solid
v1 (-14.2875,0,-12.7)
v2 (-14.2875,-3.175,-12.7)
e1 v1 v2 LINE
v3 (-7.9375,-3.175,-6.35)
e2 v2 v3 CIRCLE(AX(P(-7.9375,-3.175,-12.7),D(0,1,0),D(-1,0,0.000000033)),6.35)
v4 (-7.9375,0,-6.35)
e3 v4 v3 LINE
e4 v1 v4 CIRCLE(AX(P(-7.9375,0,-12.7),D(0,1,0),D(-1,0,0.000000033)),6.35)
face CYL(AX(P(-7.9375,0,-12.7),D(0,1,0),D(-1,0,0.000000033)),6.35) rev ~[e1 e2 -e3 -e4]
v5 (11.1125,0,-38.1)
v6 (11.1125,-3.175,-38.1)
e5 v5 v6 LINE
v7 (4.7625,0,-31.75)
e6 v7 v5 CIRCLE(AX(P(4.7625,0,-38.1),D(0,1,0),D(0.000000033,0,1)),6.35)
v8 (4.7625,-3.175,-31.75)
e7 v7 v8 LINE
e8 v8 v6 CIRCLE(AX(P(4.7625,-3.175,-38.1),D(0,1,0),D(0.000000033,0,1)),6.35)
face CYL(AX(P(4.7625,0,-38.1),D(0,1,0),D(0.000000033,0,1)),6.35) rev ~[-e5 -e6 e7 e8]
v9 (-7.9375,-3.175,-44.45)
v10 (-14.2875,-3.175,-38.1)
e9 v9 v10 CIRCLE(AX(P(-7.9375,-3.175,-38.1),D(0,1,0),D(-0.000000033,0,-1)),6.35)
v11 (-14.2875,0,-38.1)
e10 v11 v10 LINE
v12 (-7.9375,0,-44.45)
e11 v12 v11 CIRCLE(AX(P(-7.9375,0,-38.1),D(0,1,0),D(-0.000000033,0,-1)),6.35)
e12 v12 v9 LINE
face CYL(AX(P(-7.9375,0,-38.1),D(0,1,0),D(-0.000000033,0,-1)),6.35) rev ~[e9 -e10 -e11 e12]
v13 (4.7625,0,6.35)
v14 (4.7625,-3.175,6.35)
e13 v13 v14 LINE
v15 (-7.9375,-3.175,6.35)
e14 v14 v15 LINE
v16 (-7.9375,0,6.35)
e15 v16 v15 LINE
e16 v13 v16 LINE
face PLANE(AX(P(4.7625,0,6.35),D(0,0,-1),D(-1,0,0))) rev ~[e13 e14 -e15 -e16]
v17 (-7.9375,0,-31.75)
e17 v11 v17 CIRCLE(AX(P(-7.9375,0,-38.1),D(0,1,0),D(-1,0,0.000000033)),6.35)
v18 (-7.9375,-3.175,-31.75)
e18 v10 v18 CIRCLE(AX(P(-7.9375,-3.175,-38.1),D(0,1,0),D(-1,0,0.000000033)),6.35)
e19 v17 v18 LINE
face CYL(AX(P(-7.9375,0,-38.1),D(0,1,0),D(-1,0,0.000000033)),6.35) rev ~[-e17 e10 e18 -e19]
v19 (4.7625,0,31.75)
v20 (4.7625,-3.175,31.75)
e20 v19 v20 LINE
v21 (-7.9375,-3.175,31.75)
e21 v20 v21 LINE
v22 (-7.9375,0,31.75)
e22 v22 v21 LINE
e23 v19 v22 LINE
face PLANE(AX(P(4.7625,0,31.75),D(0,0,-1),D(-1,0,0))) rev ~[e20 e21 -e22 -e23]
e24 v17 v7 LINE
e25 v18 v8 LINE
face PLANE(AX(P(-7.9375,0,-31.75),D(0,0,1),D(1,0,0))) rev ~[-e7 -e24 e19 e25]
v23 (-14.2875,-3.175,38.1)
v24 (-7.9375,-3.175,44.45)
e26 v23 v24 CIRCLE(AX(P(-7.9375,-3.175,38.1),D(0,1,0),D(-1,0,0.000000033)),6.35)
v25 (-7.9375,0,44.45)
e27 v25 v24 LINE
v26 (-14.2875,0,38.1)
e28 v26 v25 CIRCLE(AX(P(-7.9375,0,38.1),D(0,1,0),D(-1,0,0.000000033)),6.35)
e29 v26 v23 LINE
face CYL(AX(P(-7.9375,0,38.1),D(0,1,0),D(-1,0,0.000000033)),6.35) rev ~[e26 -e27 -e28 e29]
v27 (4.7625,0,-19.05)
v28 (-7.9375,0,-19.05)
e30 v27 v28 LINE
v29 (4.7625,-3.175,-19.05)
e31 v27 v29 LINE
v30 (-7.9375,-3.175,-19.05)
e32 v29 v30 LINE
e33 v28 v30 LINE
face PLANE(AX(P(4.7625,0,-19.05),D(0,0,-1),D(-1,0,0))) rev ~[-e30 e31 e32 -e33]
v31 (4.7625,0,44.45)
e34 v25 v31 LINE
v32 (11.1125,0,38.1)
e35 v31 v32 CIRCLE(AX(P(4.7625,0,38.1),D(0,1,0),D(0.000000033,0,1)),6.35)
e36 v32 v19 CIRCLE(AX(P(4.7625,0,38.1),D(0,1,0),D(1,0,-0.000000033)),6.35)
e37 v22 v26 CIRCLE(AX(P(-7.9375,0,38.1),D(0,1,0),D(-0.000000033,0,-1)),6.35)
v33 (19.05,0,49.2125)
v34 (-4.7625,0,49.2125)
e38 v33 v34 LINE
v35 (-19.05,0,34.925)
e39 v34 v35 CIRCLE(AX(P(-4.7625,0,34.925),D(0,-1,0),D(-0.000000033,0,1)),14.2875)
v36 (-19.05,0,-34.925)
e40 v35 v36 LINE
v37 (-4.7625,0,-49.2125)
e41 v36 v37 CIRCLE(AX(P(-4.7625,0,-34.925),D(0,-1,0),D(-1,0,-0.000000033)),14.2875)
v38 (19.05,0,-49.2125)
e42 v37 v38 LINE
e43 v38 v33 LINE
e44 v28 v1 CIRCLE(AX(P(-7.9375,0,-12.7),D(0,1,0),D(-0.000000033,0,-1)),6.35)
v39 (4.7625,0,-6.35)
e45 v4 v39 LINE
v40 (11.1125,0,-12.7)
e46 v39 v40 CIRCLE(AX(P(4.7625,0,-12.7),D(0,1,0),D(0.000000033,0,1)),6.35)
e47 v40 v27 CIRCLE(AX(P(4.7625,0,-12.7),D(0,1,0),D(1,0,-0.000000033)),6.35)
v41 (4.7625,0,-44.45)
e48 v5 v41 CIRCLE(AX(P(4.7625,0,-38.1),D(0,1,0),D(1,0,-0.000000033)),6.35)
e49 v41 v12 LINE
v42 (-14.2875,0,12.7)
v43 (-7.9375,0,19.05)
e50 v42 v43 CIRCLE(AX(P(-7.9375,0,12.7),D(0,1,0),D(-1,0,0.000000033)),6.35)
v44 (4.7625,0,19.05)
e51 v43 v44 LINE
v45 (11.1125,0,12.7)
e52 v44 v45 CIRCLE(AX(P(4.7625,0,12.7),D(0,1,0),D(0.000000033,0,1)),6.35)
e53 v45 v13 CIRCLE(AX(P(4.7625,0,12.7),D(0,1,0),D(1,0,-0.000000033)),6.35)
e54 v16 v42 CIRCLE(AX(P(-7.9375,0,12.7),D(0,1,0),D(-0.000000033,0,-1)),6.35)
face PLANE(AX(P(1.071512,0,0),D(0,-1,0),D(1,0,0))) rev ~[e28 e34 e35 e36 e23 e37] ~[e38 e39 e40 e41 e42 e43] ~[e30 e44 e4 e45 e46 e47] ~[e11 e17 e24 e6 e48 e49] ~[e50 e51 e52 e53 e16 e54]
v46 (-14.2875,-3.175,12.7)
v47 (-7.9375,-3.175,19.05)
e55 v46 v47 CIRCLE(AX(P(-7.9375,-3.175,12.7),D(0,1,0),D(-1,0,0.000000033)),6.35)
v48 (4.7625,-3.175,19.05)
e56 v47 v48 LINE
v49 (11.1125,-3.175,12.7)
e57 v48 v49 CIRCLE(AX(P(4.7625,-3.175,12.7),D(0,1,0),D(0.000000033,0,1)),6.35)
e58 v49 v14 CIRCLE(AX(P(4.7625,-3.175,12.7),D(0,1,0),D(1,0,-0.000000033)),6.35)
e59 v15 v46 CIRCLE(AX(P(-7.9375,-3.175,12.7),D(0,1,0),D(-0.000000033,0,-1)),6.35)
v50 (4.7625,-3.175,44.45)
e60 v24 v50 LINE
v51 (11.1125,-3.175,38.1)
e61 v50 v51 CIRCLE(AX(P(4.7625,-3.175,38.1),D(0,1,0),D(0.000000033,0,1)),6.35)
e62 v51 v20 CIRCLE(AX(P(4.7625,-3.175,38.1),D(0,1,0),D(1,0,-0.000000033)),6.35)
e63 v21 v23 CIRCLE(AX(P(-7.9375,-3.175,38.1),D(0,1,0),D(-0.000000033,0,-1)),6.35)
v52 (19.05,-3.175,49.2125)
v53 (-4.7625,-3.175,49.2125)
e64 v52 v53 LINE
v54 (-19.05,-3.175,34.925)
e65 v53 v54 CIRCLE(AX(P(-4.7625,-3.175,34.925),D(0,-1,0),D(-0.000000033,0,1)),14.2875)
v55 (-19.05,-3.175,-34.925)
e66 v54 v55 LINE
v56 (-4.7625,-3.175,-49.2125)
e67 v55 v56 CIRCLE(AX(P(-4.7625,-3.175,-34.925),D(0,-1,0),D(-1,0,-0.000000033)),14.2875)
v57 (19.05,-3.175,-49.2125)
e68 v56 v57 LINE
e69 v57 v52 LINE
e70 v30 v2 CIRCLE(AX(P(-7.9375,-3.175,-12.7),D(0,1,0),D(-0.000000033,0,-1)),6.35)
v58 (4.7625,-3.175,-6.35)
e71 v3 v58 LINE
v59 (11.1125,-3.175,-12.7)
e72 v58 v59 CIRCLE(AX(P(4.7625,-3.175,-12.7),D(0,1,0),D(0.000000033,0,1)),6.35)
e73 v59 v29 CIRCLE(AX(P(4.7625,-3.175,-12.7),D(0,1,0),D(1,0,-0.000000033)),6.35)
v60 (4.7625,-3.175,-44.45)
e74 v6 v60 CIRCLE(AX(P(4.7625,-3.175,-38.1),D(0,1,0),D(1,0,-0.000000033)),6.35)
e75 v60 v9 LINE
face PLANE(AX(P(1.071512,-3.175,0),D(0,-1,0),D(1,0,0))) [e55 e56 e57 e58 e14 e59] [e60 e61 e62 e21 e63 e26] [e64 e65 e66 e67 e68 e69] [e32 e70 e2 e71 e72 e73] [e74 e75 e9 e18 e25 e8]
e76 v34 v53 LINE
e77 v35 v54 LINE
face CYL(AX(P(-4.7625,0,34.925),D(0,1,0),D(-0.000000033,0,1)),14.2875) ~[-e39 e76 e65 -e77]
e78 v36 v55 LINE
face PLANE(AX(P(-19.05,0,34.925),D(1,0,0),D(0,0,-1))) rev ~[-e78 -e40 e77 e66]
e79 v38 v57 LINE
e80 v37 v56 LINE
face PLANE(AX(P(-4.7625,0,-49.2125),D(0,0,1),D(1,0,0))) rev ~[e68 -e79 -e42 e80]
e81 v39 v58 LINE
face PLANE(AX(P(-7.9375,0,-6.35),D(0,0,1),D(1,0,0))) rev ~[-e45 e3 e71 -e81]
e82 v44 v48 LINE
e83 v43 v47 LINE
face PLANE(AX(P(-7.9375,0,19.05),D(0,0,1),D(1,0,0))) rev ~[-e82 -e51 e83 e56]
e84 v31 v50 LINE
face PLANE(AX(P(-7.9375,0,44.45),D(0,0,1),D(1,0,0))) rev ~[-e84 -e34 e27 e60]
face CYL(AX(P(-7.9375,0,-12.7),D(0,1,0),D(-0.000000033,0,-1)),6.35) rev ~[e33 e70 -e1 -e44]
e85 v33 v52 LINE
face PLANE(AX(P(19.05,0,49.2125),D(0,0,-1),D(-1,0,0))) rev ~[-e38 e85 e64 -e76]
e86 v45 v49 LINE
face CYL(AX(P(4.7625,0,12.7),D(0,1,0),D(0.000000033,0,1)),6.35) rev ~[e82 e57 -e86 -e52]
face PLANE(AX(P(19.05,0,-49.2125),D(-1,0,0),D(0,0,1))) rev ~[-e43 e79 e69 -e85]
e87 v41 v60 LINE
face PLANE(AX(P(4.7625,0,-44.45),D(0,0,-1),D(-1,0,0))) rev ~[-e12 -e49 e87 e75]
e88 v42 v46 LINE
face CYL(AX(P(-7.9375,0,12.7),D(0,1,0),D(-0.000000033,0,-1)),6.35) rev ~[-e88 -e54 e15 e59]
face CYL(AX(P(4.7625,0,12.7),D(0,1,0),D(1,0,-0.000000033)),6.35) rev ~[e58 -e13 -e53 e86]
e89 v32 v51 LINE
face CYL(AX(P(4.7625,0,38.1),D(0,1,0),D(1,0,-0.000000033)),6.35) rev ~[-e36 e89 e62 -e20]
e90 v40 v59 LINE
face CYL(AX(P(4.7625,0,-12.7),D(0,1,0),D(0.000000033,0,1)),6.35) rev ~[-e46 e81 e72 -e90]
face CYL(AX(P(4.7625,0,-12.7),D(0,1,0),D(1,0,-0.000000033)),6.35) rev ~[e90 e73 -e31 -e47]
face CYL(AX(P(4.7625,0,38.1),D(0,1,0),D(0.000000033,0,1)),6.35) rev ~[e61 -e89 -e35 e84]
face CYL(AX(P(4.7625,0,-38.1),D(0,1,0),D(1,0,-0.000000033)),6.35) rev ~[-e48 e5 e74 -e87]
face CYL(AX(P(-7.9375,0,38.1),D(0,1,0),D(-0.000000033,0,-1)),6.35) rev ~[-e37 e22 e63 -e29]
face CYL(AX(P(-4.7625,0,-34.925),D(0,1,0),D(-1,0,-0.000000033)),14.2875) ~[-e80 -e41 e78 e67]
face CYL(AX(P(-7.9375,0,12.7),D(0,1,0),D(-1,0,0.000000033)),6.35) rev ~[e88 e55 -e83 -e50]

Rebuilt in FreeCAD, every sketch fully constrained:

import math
import FreeCAD as App
import Part
import Sketcher
from FreeCAD import Vector
Q = App.Units.Quantity

doc = App.newDocument("Part")
body = doc.addObject("PartDesign::Body", "Body")

# Sketch on XZ plane
sketch1 = doc.addObject("Sketcher::SketchObject", "Sketch")
body.addObject(sketch1)
sketch1.AttachmentSupport = (doc.XZ_Plane, [""])
sketch1.MapMode = "FlatFace"
sketch1.addGeometry(Part.LineSegment(Vector(-4.7625, -49.2125, 0), Vector(19.05, -49.2125, 0)), False)
sketch1.addGeometry(Part.LineSegment(Vector(19.05, -49.2125, 0), Vector(19.05, 49.2125, 0)), False)
sketch1.addGeometry(Part.LineSegment(Vector(19.05, 49.2125, 0), Vector(-4.7625, 49.2125, 0)), False)
sketch1.addGeometry(Part.ArcOfCircle(Part.Circle(Vector(-4.7625, 34.925, 0), Vector(0, 0, 1), 14.2875), math.radians(90.000002), math.radians(179.999998)), False)
sketch1.addGeometry(Part.LineSegment(Vector(-19.05, 34.925, 0), Vector(-19.05, -34.925, 0)), False)
sketch1.addGeometry(Part.ArcOfCircle(Part.Circle(Vector(-4.7625, -34.925, 0), Vector(0, 0, 1), 14.2875), math.radians(-179.999998), math.radians(-90.000002)), False)
sketch1.addGeometry(Part.ArcOfCircle(Part.Circle(Vector(4.7625, -38.1, 0), Vector(0, 0, 1), 6.35), math.radians(0.000002), math.radians(89.999998)), False)
sketch1.addGeometry(Part.ArcOfCircle(Part.Circle(Vector(4.7625, -38.1, 0), Vector(0, 0, 1), 6.35), math.radians(-89.999998), math.radians(-0.000002)), False)
sketch1.addGeometry(Part.LineSegment(Vector(4.7625, -44.45, 0), Vector(-7.9375, -44.45, 0)), False)
sketch1.addGeometry(Part.ArcOfCircle(Part.Circle(Vector(-7.9375, -38.1, 0), Vector(0, 0, 1), 6.35), math.radians(-179.999998), math.radians(-90.000002)), False)
sketch1.addGeometry(Part.ArcOfCircle(Part.Circle(Vector(-7.9375, -38.1, 0), Vector(0, 0, 1), 6.35), math.radians(90.000002), math.radians(179.999998)), False)
sketch1.addGeometry(Part.LineSegment(Vector(-7.9375, -31.75, 0), Vector(4.7625, -31.75, 0)), False)
sketch1.addGeometry(Part.ArcOfCircle(Part.Circle(Vector(-7.9375, -12.7, 0), Vector(0, 0, 1), 6.35), math.radians(90.000002), math.radians(179.999998)), False)
sketch1.addGeometry(Part.LineSegment(Vector(-7.9375, -6.35, 0), Vector(4.7625, -6.35, 0)), False)
sketch1.addGeometry(Part.ArcOfCircle(Part.Circle(Vector(4.7625, -12.7, 0), Vector(0, 0, 1), 6.35), math.radians(0.000002), math.radians(89.999998)), False)
sketch1.addGeometry(Part.ArcOfCircle(Part.Circle(Vector(4.7625, -12.7, 0), Vector(0, 0, 1), 6.35), math.radians(-89.999998), math.radians(-0.000002)), False)
sketch1.addGeometry(Part.LineSegment(Vector(4.7625, -19.05, 0), Vector(-7.9375, -19.05, 0)), False)
sketch1.addGeometry(Part.ArcOfCircle(Part.Circle(Vector(-7.9375, -12.7, 0), Vector(0, 0, 1), 6.35), math.radians(-179.999998), math.radians(-90.000002)), False)
sketch1.addGeometry(Part.ArcOfCircle(Part.Circle(Vector(-7.9375, 12.7, 0), Vector(0, 0, 1), 6.35), math.radians(90.000002), math.radians(179.999998)), False)
sketch1.addGeometry(Part.LineSegment(Vector(-7.9375, 19.05, 0), Vector(4.7625, 19.05, 0)), False)
sketch1.addGeometry(Part.ArcOfCircle(Part.Circle(Vector(4.7625, 12.7, 0), Vector(0, 0, 1), 6.35), math.radians(0.000002), math.radians(89.999998)), False)
sketch1.addGeometry(Part.ArcOfCircle(Part.Circle(Vector(4.7625, 12.7, 0), Vector(0, 0, 1), 6.35), math.radians(-89.999998), math.radians(-0.000002)), False)
sketch1.addGeometry(Part.LineSegment(Vector(4.7625, 6.35, 0), Vector(-7.9375, 6.35, 0)), False)
sketch1.addGeometry(Part.ArcOfCircle(Part.Circle(Vector(-7.9375, 12.7, 0), Vector(0, 0, 1), 6.35), math.radians(-179.999998), math.radians(-90.000002)), False)
sketch1.addGeometry(Part.ArcOfCircle(Part.Circle(Vector(-7.9375, 38.1, 0), Vector(0, 0, 1), 6.35), math.radians(90.000002), math.radians(179.999998)), False)
sketch1.addGeometry(Part.LineSegment(Vector(-7.9375, 44.45, 0), Vector(4.7625, 44.45, 0)), False)
sketch1.addGeometry(Part.ArcOfCircle(Part.Circle(Vector(4.7625, 38.1, 0), Vector(0, 0, 1), 6.35), math.radians(0.000002), math.radians(89.999998)), False)
sketch1.addGeometry(Part.ArcOfCircle(Part.Circle(Vector(4.7625, 38.1, 0), Vector(0, 0, 1), 6.35), math.radians(-89.999998), math.radians(-0.000002)), False)
sketch1.addGeometry(Part.LineSegment(Vector(4.7625, 31.75, 0), Vector(-7.9375, 31.75, 0)), False)
sketch1.addGeometry(Part.ArcOfCircle(Part.Circle(Vector(-7.9375, 38.1, 0), Vector(0, 0, 1), 6.35), math.radians(-179.999998), math.radians(-90.000002)), False)
sketch1.addConstraint(Sketcher.Constraint("Coincident", 0, 2, 1, 1))
sketch1.addConstraint(Sketcher.Constraint("Coincident", 1, 2, 2, 1))
sketch1.addConstraint(Sketcher.Constraint("Tangent", 2, 2, 3, 1))
sketch1.addConstraint(Sketcher.Constraint("Tangent", 3, 2, 4, 1))
sketch1.addConstraint(Sketcher.Constraint("Tangent", 4, 2, 5, 1))
sketch1.addConstraint(Sketcher.Constraint("Tangent", 5, 2, 0, 1))
sketch1.addConstraint(Sketcher.Constraint("Tangent", 6, 1, 7, 2))
sketch1.addConstraint(Sketcher.Constraint("Tangent", 7, 1, 8, 1))
sketch1.addConstraint(Sketcher.Constraint("Tangent", 8, 2, 9, 2))
sketch1.addConstraint(Sketcher.Constraint("Tangent", 9, 1, 10, 2))
sketch1.addConstraint(Sketcher.Constraint("Tangent", 10, 1, 11, 1))
sketch1.addConstraint(Sketcher.Constraint("Tangent", 11, 2, 6, 2))
sketch1.addConstraint(Sketcher.Constraint("Tangent", 12, 1, 13, 1))
sketch1.addConstraint(Sketcher.Constraint("Tangent", 13, 2, 14, 2))
sketch1.addConstraint(Sketcher.Constraint("Tangent", 14, 1, 15, 2))
sketch1.addConstraint(Sketcher.Constraint("Tangent", 15, 1, 16, 1))
sketch1.addConstraint(Sketcher.Constraint("Tangent", 16, 2, 17, 2))
sketch1.addConstraint(Sketcher.Constraint("Tangent", 17, 1, 12, 2))
sketch1.addConstraint(Sketcher.Constraint("Tangent", 18, 1, 19, 1))
sketch1.addConstraint(Sketcher.Constraint("Tangent", 19, 2, 20, 2))
sketch1.addConstraint(Sketcher.Constraint("Tangent", 20, 1, 21, 2))
sketch1.addConstraint(Sketcher.Constraint("Tangent", 21, 1, 22, 1))
sketch1.addConstraint(Sketcher.Constraint("Tangent", 22, 2, 23, 2))
sketch1.addConstraint(Sketcher.Constraint("Tangent", 23, 1, 18, 2))
sketch1.addConstraint(Sketcher.Constraint("Tangent", 24, 1, 25, 1))
sketch1.addConstraint(Sketcher.Constraint("Tangent", 25, 2, 26, 2))
sketch1.addConstraint(Sketcher.Constraint("Tangent", 26, 1, 27, 2))
sketch1.addConstraint(Sketcher.Constraint("Tangent", 27, 1, 28, 1))
sketch1.addConstraint(Sketcher.Constraint("Tangent", 28, 2, 29, 2))
sketch1.addConstraint(Sketcher.Constraint("Tangent", 29, 1, 24, 2))
sketch1.addConstraint(Sketcher.Constraint("Horizontal", 0))
sketch1.addConstraint(Sketcher.Constraint("Vertical", 1))
sketch1.addConstraint(Sketcher.Constraint("Horizontal", 2))
sketch1.addConstraint(Sketcher.Constraint("Vertical", 4))
sketch1.addConstraint(Sketcher.Constraint("Horizontal", 8))
sketch1.addConstraint(Sketcher.Constraint("Horizontal", 11))
sketch1.addConstraint(Sketcher.Constraint("Horizontal", 13))
sketch1.addConstraint(Sketcher.Constraint("Horizontal", 16))
sketch1.addConstraint(Sketcher.Constraint("Horizontal", 19))
sketch1.addConstraint(Sketcher.Constraint("Horizontal", 22))
sketch1.addConstraint(Sketcher.Constraint("Horizontal", 25))
sketch1.addConstraint(Sketcher.Constraint("Horizontal", 28))
sketch1.addConstraint(Sketcher.Constraint("Equal", 3, 5))
sketch1.addConstraint(Sketcher.Constraint("Equal", 6, 7))
sketch1.addConstraint(Sketcher.Constraint("Equal", 7, 9))
sketch1.addConstraint(Sketcher.Constraint("Equal", 10, 12))
sketch1.addConstraint(Sketcher.Constraint("Equal", 12, 14))
sketch1.addConstraint(Sketcher.Constraint("Equal", 14, 15))
sketch1.addConstraint(Sketcher.Constraint("Equal", 17, 18))
sketch1.addConstraint(Sketcher.Constraint("Equal", 18, 20))
sketch1.addConstraint(Sketcher.Constraint("Equal", 20, 21))
sketch1.addConstraint(Sketcher.Constraint("Equal", 23, 24))
sketch1.addConstraint(Sketcher.Constraint("Equal", 24, 26))
sketch1.addConstraint(Sketcher.Constraint("Equal", 26, 27))
sketch1.addConstraint(Sketcher.Constraint("Symmetric", 12, 3, 18, 3, -1))
sketch1.addConstraint(Sketcher.Constraint("Symmetric", 9, 3, 24, 3, -1))
sketch1.addConstraint(Sketcher.Constraint("Symmetric", 14, 1, 20, 1, -1))
sketch1.addConstraint(Sketcher.Constraint("Symmetric", 6, 1, 26, 1, -1))
sketch1.addConstraint(Sketcher.Constraint("Horizontal", 10, 3, 6, 1))
sketch1.addConstraint(Sketcher.Constraint("Horizontal", 6, 1, 9, 1))
sketch1.addConstraint(Sketcher.Constraint("Horizontal", 17, 3, 14, 1))
sketch1.addConstraint(Sketcher.Constraint("Horizontal", 14, 1, 17, 1))
sketch1.addConstraint(Sketcher.Constraint("Horizontal", 20, 1, 23, 1))
sketch1.addConstraint(Sketcher.Constraint("Horizontal", 26, 1, 29, 1))
sketch1.addConstraint(Sketcher.Constraint("Vertical", 10, 3, 12, 3))
sketch1.addConstraint(Sketcher.Constraint("Vertical", 7, 3, 14, 3))
sketch1.addConstraint(Sketcher.Constraint("Radius", 6, Q("0.25 in")))
sketch1.addConstraint(Sketcher.Constraint("DistanceX", 8, 2, 8, 1, Q("0.5 in")))
sketch1.addConstraint(Sketcher.Constraint("Radius", 3, Q("0.5625 in")))
sketch1.addConstraint(Sketcher.Constraint("DistanceY", 9, 3, 12, 3, Q("1 in")))
sketch1.addConstraint(Sketcher.Constraint("DistanceY", 17, 3, 18, 3, Q("1 in")))
sketch1.addConstraint(Sketcher.Constraint("DistanceY", 4, 2, 4, 1, Q("2.75 in")))
sketch1.addConstraint(Sketcher.Constraint("DistanceX", 0, 1, 0, 2, Q("0.9375 in")))
sketch1.addConstraint(Sketcher.Constraint("DistanceX", -1, 1, 0, 2, Q("0.75 in")))
sketch1.addConstraint(Sketcher.Constraint("DistanceY", -1, 1, 3, 3, Q("1.375 in")))
sketch1.addConstraint(Sketcher.Constraint("DistanceX", -1, 1, 6, 3, Q("0.1875 in")))
pad1 = doc.addObject("PartDesign::Pad", "Pad")
body.addObject(pad1)
pad1.Profile = sketch1
pad1.Length = Q("0.125 in")

doc.recompute()
